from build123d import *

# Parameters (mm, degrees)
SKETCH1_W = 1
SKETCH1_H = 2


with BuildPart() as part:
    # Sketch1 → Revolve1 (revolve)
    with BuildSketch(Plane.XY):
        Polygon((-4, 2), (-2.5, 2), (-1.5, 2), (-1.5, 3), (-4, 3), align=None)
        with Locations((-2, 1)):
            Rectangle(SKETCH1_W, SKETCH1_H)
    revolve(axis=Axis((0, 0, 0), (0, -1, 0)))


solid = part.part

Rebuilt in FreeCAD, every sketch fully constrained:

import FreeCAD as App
import Part
import Sketcher


def add_polygon(sketch, points):
    """Adds a closed chain of lines whose ends are joined by coincident constraints."""
    first, n = sketch.GeometryCount, len(points)
    for a, b in zip(points, points[1:] + points[:1]):
        sketch.addGeometry(Part.LineSegment(App.Vector(*a, 0), App.Vector(*b, 0)), False)
    for i in range(n):
        sketch.addConstraint(Sketcher.Constraint("Coincident", first + i, 2, first + (i + 1) % n, 1))

doc = App.newDocument("Part")
params = doc.addObject("Spreadsheet::Sheet", "Params")
for row, (alias, value) in enumerate([
    ("sketch1_width", "1 mm"),
    ("sketch1_height", "2 mm"),
    ("sketch1_width2", "1.5 mm"),
    ("revolution_angle", "360 deg"),
], start=1):
    params.set(f"A{row}", alias)
    params.set(f"B{row}", "=" + value)
    params.setAlias(f"B{row}", alias)

body = doc.addObject("PartDesign::Body", "Body")

# Sketch on XY plane
sketch1 = body.newObject("Sketcher::SketchObject", "Sketch")
sketch1.AttachmentSupport = (doc.getObject("XY_Plane"), [""])
sketch1.MapMode = "FlatFace"
add_polygon(sketch1, [(-4, 2), (-2.5, 2), (-2.5, 0), (-1.5, 0), (-1.5, 3), (-4, 3)])  # lines 0-5
sketch1.addConstraint([
    Sketcher.Constraint("Horizontal", 0),
    Sketcher.Constraint("Vertical", 1),
    Sketcher.Constraint("Horizontal", 2),
    Sketcher.Constraint("Vertical", 3),
    Sketcher.Constraint("Horizontal", 4),
    Sketcher.Constraint("Vertical", 5),
    Sketcher.Constraint("PointOnObject", 1, 2, -1),
    Sketcher.Constraint("Equal", 2, 5),
    Sketcher.Constraint("DistanceX", 2, 1, 2, 2, 1.0),
    Sketcher.Constraint("DistanceY", 1, 2, 1, 1, 2.0),
    Sketcher.Constraint("DistanceX", 0, 1, 0, 2, 1.5),
    Sketcher.Constraint("DistanceX", 4, 2, -1, 1, 4.0),
])
sketch1.setExpression("Constraints[14]", "Params.sketch1_width")
sketch1.setExpression("Constraints[15]", "Params.sketch1_height")
sketch1.setExpression("Constraints[16]", "Params.sketch1_width2")
revolution = body.newObject("PartDesign::Revolution", "Revolution")
revolution.Profile = sketch1
revolution.ReferenceAxis = (sketch1, ["V_Axis"])
revolution.setExpression("Angle", "Params.revolution_angle")

doc.recompute()
